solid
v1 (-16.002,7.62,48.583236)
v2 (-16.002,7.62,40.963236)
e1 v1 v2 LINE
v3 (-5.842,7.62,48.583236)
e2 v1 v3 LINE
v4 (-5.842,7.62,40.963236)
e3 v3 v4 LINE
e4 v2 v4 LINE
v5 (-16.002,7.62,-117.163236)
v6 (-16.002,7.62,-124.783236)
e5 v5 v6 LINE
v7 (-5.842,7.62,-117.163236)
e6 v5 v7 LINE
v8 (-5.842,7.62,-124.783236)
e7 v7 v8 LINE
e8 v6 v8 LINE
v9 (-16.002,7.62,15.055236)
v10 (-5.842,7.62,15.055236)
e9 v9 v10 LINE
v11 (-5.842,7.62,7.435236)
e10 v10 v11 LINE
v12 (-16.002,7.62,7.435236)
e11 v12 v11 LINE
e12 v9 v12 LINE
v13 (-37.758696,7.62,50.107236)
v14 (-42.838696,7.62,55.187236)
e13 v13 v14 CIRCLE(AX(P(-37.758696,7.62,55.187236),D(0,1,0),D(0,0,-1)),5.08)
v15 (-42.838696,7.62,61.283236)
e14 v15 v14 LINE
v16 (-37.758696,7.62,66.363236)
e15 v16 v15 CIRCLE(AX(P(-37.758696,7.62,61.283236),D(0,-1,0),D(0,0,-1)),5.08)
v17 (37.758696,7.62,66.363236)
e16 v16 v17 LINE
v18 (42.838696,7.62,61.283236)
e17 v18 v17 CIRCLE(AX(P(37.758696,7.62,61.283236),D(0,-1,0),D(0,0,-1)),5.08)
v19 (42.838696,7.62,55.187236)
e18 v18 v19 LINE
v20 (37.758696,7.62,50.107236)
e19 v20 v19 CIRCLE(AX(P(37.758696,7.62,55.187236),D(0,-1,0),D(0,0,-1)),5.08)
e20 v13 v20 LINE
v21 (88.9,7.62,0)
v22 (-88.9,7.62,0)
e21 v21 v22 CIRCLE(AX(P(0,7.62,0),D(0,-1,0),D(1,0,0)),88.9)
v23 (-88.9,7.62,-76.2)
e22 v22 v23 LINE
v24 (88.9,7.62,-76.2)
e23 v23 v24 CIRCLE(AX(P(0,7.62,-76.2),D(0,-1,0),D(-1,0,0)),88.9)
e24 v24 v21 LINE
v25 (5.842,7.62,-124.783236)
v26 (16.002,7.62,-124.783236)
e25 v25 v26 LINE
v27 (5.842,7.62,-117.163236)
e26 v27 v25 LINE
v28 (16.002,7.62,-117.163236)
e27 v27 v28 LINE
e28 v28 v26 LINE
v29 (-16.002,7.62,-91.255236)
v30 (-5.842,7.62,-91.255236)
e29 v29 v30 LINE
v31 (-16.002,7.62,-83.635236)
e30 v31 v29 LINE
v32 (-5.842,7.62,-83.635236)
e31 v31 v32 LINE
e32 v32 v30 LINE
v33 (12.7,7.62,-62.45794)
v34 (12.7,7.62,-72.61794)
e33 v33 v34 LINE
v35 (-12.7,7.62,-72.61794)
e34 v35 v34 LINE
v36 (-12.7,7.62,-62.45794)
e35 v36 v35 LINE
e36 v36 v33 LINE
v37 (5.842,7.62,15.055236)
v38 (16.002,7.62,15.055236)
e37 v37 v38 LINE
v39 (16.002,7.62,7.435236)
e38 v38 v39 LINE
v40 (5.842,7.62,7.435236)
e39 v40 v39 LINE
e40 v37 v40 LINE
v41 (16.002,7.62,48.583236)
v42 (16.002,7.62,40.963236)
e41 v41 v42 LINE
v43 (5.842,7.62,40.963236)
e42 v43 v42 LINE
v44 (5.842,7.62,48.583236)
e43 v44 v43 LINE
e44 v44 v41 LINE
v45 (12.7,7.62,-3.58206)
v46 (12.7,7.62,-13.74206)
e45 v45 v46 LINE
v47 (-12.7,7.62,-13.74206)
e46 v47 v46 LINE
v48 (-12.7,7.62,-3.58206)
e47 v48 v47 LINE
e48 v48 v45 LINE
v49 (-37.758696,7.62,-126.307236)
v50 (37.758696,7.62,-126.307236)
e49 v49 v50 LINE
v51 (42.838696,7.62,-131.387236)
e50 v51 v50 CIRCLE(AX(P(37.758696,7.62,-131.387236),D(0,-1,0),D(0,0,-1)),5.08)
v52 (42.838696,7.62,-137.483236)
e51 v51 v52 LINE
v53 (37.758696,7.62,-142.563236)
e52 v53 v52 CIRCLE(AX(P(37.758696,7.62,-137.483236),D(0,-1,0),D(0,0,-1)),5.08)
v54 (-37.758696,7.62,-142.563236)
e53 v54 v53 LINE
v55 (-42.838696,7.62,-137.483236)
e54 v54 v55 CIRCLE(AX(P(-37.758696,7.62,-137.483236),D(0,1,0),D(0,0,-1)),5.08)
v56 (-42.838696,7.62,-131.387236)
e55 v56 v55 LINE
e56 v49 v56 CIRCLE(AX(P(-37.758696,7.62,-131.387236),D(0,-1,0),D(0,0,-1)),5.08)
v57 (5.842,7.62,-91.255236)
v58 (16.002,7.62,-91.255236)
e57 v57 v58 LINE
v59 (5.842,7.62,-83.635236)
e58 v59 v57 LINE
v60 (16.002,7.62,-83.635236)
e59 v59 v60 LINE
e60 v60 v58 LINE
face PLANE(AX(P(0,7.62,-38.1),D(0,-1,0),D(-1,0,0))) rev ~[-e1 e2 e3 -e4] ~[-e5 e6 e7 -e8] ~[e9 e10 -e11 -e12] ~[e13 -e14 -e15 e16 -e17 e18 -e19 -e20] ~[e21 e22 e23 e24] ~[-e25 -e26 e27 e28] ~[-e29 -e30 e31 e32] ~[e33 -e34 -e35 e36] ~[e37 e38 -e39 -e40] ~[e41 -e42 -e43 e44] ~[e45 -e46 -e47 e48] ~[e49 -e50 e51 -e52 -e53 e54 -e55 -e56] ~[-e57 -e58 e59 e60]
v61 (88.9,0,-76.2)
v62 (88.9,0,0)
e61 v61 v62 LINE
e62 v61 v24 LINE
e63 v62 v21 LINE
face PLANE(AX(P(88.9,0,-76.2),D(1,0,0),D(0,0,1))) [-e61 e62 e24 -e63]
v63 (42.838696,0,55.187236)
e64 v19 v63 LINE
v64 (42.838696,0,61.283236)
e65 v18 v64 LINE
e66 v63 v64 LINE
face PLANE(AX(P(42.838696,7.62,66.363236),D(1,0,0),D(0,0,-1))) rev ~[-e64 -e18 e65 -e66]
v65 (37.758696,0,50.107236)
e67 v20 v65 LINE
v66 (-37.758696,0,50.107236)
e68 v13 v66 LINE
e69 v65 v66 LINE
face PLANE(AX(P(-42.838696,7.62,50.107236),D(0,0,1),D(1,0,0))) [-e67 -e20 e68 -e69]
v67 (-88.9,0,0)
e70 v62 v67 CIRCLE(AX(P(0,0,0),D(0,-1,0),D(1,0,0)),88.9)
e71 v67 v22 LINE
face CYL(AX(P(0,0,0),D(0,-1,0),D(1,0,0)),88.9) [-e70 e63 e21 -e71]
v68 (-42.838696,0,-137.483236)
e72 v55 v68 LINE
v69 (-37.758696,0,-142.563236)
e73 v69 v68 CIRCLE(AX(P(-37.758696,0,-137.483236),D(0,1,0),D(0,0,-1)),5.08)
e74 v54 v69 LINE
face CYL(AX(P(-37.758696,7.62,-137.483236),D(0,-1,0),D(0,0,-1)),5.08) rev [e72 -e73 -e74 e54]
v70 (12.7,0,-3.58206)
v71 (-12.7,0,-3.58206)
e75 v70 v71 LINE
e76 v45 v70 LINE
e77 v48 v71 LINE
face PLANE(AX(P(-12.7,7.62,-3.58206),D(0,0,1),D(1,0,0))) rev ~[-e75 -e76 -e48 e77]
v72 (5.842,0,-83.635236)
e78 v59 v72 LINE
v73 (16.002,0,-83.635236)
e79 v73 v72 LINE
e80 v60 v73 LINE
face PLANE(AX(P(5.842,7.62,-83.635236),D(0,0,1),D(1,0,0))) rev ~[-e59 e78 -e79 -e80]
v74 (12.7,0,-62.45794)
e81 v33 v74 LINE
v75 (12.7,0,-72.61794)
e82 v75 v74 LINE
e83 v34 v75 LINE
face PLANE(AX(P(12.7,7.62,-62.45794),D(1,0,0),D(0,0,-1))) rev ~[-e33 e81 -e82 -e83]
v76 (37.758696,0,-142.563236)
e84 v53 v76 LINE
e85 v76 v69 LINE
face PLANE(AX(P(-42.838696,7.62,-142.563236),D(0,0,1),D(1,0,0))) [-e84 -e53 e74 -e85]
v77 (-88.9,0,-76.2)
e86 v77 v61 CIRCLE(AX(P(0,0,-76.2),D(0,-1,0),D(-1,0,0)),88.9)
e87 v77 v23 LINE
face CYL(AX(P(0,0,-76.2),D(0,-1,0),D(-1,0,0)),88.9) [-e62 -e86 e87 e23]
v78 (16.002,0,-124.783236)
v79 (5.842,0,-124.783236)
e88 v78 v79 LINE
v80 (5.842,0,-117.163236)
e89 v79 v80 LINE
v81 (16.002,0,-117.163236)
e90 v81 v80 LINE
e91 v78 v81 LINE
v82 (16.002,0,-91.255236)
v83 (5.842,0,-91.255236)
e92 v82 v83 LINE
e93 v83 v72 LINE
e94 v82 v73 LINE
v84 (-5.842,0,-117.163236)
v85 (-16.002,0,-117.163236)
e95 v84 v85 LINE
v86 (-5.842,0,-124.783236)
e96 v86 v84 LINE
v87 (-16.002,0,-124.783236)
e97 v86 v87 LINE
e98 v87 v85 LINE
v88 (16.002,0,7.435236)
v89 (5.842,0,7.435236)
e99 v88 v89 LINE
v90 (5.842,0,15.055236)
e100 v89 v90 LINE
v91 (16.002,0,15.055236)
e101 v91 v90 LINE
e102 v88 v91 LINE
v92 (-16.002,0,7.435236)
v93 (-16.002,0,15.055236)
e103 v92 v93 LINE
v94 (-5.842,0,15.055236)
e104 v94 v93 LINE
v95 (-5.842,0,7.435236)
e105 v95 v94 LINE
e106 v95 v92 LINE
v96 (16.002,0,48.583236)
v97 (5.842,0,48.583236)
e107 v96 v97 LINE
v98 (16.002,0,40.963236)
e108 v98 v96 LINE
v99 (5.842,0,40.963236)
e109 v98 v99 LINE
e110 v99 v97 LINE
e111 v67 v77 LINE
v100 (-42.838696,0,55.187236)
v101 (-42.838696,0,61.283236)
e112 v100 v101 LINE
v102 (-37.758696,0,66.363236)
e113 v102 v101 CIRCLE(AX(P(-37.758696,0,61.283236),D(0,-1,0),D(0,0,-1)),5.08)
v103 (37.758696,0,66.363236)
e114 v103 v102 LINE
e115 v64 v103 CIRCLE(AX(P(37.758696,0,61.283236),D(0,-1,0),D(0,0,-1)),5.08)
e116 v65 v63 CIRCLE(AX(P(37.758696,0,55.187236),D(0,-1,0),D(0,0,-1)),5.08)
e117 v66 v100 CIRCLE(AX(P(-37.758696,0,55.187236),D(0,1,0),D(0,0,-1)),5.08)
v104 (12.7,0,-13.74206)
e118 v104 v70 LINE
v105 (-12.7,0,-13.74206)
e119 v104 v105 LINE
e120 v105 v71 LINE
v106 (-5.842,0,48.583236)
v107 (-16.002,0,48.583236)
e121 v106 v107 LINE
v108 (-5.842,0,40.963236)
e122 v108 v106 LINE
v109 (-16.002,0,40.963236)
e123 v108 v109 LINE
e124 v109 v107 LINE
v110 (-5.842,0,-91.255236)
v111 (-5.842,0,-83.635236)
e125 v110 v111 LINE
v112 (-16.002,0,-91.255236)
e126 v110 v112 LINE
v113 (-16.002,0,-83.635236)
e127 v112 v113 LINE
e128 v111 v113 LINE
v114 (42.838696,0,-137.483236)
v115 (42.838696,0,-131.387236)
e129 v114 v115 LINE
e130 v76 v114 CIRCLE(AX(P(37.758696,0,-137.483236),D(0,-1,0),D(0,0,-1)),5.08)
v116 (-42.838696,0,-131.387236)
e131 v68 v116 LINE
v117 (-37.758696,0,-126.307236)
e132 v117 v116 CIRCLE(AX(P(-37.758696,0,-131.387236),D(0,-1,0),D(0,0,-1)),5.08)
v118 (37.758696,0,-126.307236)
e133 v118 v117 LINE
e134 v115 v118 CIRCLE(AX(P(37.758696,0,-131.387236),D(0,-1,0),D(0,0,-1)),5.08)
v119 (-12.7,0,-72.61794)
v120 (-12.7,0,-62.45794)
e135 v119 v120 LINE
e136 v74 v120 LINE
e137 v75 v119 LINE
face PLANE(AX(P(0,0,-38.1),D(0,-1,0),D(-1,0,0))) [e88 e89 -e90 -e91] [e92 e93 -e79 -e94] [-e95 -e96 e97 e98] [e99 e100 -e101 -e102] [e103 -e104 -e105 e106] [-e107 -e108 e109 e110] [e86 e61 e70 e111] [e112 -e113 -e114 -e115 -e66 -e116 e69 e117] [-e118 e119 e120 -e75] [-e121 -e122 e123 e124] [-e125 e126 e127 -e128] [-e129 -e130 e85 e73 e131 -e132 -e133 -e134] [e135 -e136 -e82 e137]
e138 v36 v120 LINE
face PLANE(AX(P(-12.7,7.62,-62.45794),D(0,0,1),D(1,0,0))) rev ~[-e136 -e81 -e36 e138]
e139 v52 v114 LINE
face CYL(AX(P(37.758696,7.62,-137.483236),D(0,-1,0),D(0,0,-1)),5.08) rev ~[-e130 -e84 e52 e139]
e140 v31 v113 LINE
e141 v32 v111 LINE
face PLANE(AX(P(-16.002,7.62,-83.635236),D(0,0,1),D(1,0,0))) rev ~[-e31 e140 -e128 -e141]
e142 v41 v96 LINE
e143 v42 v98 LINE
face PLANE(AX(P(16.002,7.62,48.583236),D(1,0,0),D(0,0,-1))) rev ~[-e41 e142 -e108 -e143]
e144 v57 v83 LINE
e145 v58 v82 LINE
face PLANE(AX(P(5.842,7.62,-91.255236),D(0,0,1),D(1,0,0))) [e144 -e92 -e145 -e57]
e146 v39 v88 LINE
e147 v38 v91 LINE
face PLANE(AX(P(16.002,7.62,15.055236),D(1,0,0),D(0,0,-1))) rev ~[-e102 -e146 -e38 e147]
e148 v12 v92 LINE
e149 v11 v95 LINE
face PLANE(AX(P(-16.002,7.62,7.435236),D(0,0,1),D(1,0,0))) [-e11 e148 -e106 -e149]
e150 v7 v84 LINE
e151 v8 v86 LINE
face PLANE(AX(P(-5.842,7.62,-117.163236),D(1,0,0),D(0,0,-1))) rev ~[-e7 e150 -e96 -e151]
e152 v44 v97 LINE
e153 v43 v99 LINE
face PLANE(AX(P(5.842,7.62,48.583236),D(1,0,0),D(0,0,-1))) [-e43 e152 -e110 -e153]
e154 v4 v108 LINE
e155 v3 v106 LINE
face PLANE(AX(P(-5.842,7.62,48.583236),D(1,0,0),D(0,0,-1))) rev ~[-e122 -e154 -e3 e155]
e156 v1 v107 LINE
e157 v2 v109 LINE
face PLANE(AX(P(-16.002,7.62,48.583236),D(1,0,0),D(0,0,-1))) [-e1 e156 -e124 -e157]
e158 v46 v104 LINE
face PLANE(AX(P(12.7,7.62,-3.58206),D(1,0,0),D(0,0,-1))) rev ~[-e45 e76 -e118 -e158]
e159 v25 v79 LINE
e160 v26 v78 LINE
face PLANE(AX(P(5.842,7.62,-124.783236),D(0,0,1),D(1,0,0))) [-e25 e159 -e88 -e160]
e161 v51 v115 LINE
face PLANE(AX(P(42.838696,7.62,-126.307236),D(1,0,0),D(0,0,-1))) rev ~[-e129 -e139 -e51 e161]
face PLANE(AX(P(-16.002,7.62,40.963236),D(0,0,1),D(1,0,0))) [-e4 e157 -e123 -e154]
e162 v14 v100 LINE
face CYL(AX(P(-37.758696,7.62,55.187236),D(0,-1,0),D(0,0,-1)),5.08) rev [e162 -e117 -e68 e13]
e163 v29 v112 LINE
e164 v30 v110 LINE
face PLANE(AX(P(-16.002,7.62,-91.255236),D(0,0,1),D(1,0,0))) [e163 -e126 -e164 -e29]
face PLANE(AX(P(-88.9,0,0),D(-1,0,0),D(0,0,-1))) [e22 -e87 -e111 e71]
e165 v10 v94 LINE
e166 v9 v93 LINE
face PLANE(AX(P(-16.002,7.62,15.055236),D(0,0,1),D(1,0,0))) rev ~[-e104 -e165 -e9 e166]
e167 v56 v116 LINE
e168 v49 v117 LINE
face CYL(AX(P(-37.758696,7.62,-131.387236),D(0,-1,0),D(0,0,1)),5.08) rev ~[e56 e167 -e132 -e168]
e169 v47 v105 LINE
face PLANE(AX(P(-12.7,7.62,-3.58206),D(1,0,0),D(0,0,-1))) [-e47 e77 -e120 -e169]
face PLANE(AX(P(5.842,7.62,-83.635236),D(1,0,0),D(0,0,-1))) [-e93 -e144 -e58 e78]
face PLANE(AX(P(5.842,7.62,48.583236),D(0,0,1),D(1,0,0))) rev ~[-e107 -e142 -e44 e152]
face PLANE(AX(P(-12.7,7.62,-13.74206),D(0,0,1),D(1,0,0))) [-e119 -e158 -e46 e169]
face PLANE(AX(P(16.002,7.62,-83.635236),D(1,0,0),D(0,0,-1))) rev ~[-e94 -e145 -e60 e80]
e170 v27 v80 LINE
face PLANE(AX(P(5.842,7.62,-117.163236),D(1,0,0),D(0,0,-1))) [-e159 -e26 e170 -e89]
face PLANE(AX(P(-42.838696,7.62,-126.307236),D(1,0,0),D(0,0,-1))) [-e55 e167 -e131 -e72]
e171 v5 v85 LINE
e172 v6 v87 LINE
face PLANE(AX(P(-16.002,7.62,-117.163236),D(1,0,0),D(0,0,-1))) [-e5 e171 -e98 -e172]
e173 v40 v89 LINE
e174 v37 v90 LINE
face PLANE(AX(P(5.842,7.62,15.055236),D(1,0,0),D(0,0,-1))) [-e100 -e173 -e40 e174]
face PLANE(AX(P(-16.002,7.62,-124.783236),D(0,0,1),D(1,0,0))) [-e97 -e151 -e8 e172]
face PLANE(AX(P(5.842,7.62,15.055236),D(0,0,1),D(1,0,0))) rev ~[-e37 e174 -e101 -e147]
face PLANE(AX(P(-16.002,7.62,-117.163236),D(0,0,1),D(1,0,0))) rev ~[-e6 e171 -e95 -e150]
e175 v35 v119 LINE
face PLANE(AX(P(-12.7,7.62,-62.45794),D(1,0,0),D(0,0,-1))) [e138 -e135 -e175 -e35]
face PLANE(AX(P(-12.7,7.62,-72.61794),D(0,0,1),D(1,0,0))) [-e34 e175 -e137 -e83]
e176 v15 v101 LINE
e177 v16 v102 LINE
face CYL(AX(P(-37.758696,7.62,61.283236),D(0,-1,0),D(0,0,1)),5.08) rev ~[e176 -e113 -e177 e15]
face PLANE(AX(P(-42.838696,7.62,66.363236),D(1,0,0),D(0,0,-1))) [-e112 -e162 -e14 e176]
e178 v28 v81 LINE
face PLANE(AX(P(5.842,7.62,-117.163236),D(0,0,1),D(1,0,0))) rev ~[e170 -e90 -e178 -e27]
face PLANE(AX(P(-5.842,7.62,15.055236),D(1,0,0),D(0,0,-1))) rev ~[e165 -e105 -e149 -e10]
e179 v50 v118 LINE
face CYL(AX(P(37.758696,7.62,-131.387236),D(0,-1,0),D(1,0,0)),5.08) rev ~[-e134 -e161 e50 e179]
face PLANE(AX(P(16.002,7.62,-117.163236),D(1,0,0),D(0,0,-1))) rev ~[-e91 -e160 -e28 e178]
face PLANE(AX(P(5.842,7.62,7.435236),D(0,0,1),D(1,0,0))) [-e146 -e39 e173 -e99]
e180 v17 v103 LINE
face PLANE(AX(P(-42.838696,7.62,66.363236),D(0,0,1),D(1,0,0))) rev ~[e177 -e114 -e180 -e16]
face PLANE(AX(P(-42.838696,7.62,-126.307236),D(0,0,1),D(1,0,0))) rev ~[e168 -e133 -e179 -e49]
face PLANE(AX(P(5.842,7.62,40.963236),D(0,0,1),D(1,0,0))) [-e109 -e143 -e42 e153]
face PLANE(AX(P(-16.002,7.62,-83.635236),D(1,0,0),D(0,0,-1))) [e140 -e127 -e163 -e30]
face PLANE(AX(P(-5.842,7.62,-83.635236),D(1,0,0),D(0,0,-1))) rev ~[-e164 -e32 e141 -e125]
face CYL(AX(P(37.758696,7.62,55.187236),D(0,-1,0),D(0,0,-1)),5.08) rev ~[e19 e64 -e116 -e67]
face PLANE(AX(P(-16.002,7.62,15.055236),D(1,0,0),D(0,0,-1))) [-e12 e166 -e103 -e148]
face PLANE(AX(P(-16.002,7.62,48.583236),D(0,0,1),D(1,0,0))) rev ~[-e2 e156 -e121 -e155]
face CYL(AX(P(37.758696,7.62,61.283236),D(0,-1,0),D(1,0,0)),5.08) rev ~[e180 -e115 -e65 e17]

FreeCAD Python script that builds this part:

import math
import FreeCAD as App
import Part
import Sketcher
Q = App.Units.Quantity


def edges_at(feature, points):
    """Names of the edges that pass closest to the given points."""
    edges = feature.Shape.Edges
    near = lambda p: min(range(len(edges)), key=lambda i: edges[i].distToShape(Part.Vertex(*p))[0])
    return sorted({f"Edge{near(p) + 1}" for p in points})


def add_polygon(sketch, points):
    """Adds a closed chain of lines whose ends are joined by coincident constraints."""
    first, n = sketch.GeometryCount, len(points)
    for a, b in zip(points, points[1:] + points[:1]):
        sketch.addGeometry(Part.LineSegment(App.Vector(*a, 0), App.Vector(*b, 0)), False)
    for i in range(n):
        sketch.addConstraint(Sketcher.Constraint("Coincident", first + i, 2, first + (i + 1) % n, 1))

doc = App.newDocument("Part")
body = doc.addObject("PartDesign::Body", "Body")

# Sketch on XZ plane
sketch1 = body.newObject("Sketcher::SketchObject", "Sketch")
sketch1.AttachmentSupport = (doc.getObject("XZ_Plane"), [""])
sketch1.MapMode = "FlatFace"
sketch1.addGeometry([
    Part.LineSegment(App.Vector(-89, -76, 0), App.Vector(-89, 0, 0)),
    Part.ArcOfCircle(Part.Circle(App.Vector(0, 0, 0), App.Vector(0, 0, 1), 89), math.radians(0), math.radians(180)),
    Part.LineSegment(App.Vector(89, 0, 0), App.Vector(89, -76, 0)),
    Part.ArcOfCircle(Part.Circle(App.Vector(0, -76, 0), App.Vector(0, 0, 1), 89), math.radians(180), math.radians(360)),
], False)
sketch1.addConstraint([
    Sketcher.Constraint("Tangent", 0, 2, 1, 2),
    Sketcher.Constraint("Tangent", 1, 1, 2, 1),
    Sketcher.Constraint("Tangent", 2, 2, 3, 2),
    Sketcher.Constraint("Tangent", 3, 1, 0, 1),
    Sketcher.Constraint("Vertical", 0),
    Sketcher.Constraint("Vertical", 2),
    Sketcher.Constraint("Coincident", 1, 3, -1, 1),
    Sketcher.Constraint("Radius", 1, Q("3.5 in")),
    Sketcher.Constraint("DistanceY", 0, 1, 0, 2, Q("3 in")),
])
pad1 = body.newObject("PartDesign::Pad", "Pad")
pad1.Profile = sketch1
pad1.Length = Q("0.3 in")
pad1.Reversed = True

# Sketch on XZ plane
sketch2 = body.newObject("Sketcher::SketchObject", "Sketch001")
sketch2.AttachmentSupport = (doc.getObject("XZ_Plane"), [""])
sketch2.MapMode = "FlatFace"
sketch2.AttachmentOffset = App.Placement(App.Vector(0, 0, -0.3 * 25.4), App.Rotation())
add_polygon(sketch2, [(-43, 50), (-43, 66), (43, 66), (43, 50)])  # lines 0-3
add_polygon(sketch2, [(-43, -143), (-43, -126), (43, -126), (43, -143)])  # lines 4-7
sketch2.addConstraint([
    Sketcher.Constraint("Vertical", 0),
    Sketcher.Constraint("Horizontal", 1),
    Sketcher.Constraint("Vertical", 2),
    Sketcher.Constraint("Horizontal", 3),
    Sketcher.Constraint("Vertical", 4),
    Sketcher.Constraint("Horizontal", 5),
    Sketcher.Constraint("Vertical", 6),
    Sketcher.Constraint("Horizontal", 7),
    Sketcher.Constraint("Vertical", 3, 2, 4, 2),
    Sketcher.Constraint("Vertical", 2, 2, 5, 2),
    Sketcher.Constraint("Equal", 2, 4),
    Sketcher.Constraint("DistanceY", 0, 1, 0, 2, Q("0.64 in")),
    Sketcher.Constraint("DistanceX", 1, 1, 1, 2, Q("85.677392 mm")),
    Sketcher.Constraint("DistanceX", 0, 2, -1, 1, Q("42.838696 mm")),
    Sketcher.Constraint("DistanceY", -1, 1, 0, 2, Q("66.363236 mm")),
    Sketcher.Constraint("DistanceY", 4, 2, -1, 1, Q("126.307236 mm")),
])
pocket1 = body.newObject("PartDesign::Pocket", "Pocket")
pocket1.Profile = sketch2
pocket1.Type = "ThroughAll"
pocket1.Midplane = True
doc.recompute()

fillet = body.newObject("PartDesign::Fillet", "Fillet")
fillet.Base = (pocket1, edges_at(pocket1, [
    (-42.839, 3.81, 66.363),
    (-42.839, 3.81, 50.107),
    (42.839, 3.81, 50.107),
    (42.839, 3.81, 66.363),
    (-42.839, 3.81, -126.307),
    (-42.839, 3.81, -142.563),
    (42.839, 3.81, -142.563),
    (42.839, 3.81, -126.307),
]))
fillet.Radius = Q("0.2 in")

# Sketch on XZ plane
sketch3 = body.newObject("Sketcher::SketchObject", "Sketch002")
sketch3.AttachmentSupport = (doc.getObject("XZ_Plane"), [""])
sketch3.MapMode = "FlatFace"
sketch3.AttachmentOffset = App.Placement(App.Vector(0, 0, -0.3 * 25.4), App.Rotation())
add_polygon(sketch3, [(6, -91), (6, -84), (16, -84), (16, -91)])  # lines 0-3
add_polygon(sketch3, [(-16, -91), (-16, -84), (-6, -84), (-6, -91)])  # lines 4-7
add_polygon(sketch3, [(6, -125), (6, -117), (16, -117), (16, -125)])  # lines 8-11
add_polygon(sketch3, [(-16, -125), (-16, -117), (-6, -117), (-6, -125)])  # lines 12-15
add_polygon(sketch3, [(-16, 7), (-16, 15), (-6, 15), (-6, 7)])  # lines 16-19
add_polygon(sketch3, [(6, 7), (6, 15), (16, 15), (16, 7)])  # lines 20-23
add_polygon(sketch3, [(-16, 41), (-16, 49), (-6, 49), (-6, 41)])  # lines 24-27
add_polygon(sketch3, [(6, 41), (6, 49), (16, 49), (16, 41)])  # lines 28-31
sketch3.addConstraint([
    Sketcher.Constraint("Vertical", 0),
    Sketcher.Constraint("Horizontal", 1),
    Sketcher.Constraint("Vertical", 2),
    Sketcher.Constraint("Horizontal", 3),
    Sketcher.Constraint("Vertical", 4),
    Sketcher.Constraint("Horizontal", 5),
    Sketcher.Constraint("Vertical", 6),
    Sketcher.Constraint("Horizontal", 7),
    Sketcher.Constraint("Vertical", 8),
    Sketcher.Constraint("Horizontal", 9),
    Sketcher.Constraint("Vertical", 10),
    Sketcher.Constraint("Horizontal", 11),
    Sketcher.Constraint("Vertical", 12),
    Sketcher.Constraint("Horizontal", 13),
    Sketcher.Constraint("Vertical", 14),
    Sketcher.Constraint("Horizontal", 15),
    Sketcher.Constraint("Vertical", 16),
    Sketcher.Constraint("Horizontal", 17),
    Sketcher.Constraint("Vertical", 18),
    Sketcher.Constraint("Horizontal", 19),
    Sketcher.Constraint("Vertical", 20),
    Sketcher.Constraint("Horizontal", 21),
    Sketcher.Constraint("Vertical", 22),
    Sketcher.Constraint("Horizontal", 23),
    Sketcher.Constraint("Vertical", 24),
    Sketcher.Constraint("Horizontal", 25),
    Sketcher.Constraint("Vertical", 26),
    Sketcher.Constraint("Horizontal", 27),
    Sketcher.Constraint("Vertical", 28),
    Sketcher.Constraint("Horizontal", 29),
    Sketcher.Constraint("Vertical", 30),
    Sketcher.Constraint("Horizontal", 31),
    Sketcher.Constraint("Symmetric", 1, 2, 4, 2, -2),
    Sketcher.Constraint("Symmetric", 3, 2, 6, 2, -2),
    Sketcher.Constraint("Symmetric", 9, 2, 12, 2, -2),
    Sketcher.Constraint("Symmetric", 11, 2, 14, 2, -2),
    Sketcher.Constraint("Symmetric", 17, 2, 20, 2, -2),
    Sketcher.Constraint("Symmetric", 19, 2, 22, 2, -2),
    Sketcher.Constraint("Symmetric", 25, 2, 28, 2, -2),
    Sketcher.Constraint("Symmetric", 27, 2, 30, 2, -2),
    Sketcher.Constraint("Vertical", 3, 2, 8, 2),
    Sketcher.Constraint("Vertical", 2, 2, 9, 2),
    Sketcher.Constraint("Vertical", 15, 2, 16, 2),
    Sketcher.Constraint("Vertical", 14, 2, 17, 2),
    Sketcher.Constraint("Vertical", 19, 2, 24, 2),
    Sketcher.Constraint("Vertical", 18, 2, 25, 2),
    Sketcher.Constraint("Equal", 6, 8),
    Sketcher.Constraint("Equal", 14, 16),
    Sketcher.Constraint("Equal", 22, 24),
    Sketcher.Constraint("DistanceX", 1, 1, 1, 2, Q("0.4 in")),
    Sketcher.Constraint("DistanceY", 0, 1, 0, 2, Q("0.3 in")),
    Sketcher.Constraint("DistanceX", -1, 1, 0, 2, Q("0.23 in")),
    Sketcher.Constraint("DistanceY", 8, 2, 3, 2, Q("1.02 in")),
    Sketcher.Constraint("DistanceY", 16, 2, 24, 2, Q("1.32 in")),
    Sketcher.Constraint("DistanceY", 0, 2, -1, 1, Q("83.635236 mm")),
    Sketcher.Constraint("DistanceY", -1, 1, 16, 2, Q("15.055236 mm")),
])
pocket2 = body.newObject("PartDesign::Pocket", "Pocket001")
pocket2.Profile = sketch3
pocket2.Type = "ThroughAll"
pocket2.Reversed = True

# Sketch on XZ plane
sketch4 = body.newObject("Sketcher::SketchObject", "Sketch003")
sketch4.AttachmentSupport = (doc.getObject("XZ_Plane"), [""])
sketch4.MapMode = "FlatFace"
sketch4.AttachmentOffset = App.Placement(App.Vector(0, 0, -0.3 * 25.4), App.Rotation())
add_polygon(sketch4, [(-13, -73), (-13, -62), (13, -62), (13, -73)])  # lines 0-3
add_polygon(sketch4, [(-13, -14), (-13, -4), (13, -4), (13, -14)])  # lines 4-7
sketch4.addConstraint([
    Sketcher.Constraint("Vertical", 0),
    Sketcher.Constraint("Horizontal", 1),
    Sketcher.Constraint("Vertical", 2),
    Sketcher.Constraint("Horizontal", 3),
    Sketcher.Constraint("Vertical", 4),
    Sketcher.Constraint("Horizontal", 5),
    Sketcher.Constraint("Vertical", 6),
    Sketcher.Constraint("Horizontal", 7),
    Sketcher.Constraint("Vertical", 3, 2, 4, 2),
    Sketcher.Constraint("Vertical", 2, 2, 5, 2),
    Sketcher.Constraint("Equal", 2, 4),
    Sketcher.Constraint("DistanceX", 1, 1, 1, 2, Q("1 in")),
    Sketcher.Constraint("DistanceY", 0, 1, 0, 2, Q("0.4 in")),
    Sketcher.Constraint("DistanceX", 0, 2, -1, 1, Q("0.5 in")),
    Sketcher.Constraint("DistanceY", 0, 2, -1, 1, Q("62.45794 mm")),
    Sketcher.Constraint("DistanceY", 4, 2, -1, 1, Q("3.58206 mm")),
])
pocket3 = body.newObject("PartDesign::Pocket", "Pocket002")
pocket3.Profile = sketch4
pocket3.Type = "ThroughAll"
pocket3.Reversed = True

doc.recompute()
